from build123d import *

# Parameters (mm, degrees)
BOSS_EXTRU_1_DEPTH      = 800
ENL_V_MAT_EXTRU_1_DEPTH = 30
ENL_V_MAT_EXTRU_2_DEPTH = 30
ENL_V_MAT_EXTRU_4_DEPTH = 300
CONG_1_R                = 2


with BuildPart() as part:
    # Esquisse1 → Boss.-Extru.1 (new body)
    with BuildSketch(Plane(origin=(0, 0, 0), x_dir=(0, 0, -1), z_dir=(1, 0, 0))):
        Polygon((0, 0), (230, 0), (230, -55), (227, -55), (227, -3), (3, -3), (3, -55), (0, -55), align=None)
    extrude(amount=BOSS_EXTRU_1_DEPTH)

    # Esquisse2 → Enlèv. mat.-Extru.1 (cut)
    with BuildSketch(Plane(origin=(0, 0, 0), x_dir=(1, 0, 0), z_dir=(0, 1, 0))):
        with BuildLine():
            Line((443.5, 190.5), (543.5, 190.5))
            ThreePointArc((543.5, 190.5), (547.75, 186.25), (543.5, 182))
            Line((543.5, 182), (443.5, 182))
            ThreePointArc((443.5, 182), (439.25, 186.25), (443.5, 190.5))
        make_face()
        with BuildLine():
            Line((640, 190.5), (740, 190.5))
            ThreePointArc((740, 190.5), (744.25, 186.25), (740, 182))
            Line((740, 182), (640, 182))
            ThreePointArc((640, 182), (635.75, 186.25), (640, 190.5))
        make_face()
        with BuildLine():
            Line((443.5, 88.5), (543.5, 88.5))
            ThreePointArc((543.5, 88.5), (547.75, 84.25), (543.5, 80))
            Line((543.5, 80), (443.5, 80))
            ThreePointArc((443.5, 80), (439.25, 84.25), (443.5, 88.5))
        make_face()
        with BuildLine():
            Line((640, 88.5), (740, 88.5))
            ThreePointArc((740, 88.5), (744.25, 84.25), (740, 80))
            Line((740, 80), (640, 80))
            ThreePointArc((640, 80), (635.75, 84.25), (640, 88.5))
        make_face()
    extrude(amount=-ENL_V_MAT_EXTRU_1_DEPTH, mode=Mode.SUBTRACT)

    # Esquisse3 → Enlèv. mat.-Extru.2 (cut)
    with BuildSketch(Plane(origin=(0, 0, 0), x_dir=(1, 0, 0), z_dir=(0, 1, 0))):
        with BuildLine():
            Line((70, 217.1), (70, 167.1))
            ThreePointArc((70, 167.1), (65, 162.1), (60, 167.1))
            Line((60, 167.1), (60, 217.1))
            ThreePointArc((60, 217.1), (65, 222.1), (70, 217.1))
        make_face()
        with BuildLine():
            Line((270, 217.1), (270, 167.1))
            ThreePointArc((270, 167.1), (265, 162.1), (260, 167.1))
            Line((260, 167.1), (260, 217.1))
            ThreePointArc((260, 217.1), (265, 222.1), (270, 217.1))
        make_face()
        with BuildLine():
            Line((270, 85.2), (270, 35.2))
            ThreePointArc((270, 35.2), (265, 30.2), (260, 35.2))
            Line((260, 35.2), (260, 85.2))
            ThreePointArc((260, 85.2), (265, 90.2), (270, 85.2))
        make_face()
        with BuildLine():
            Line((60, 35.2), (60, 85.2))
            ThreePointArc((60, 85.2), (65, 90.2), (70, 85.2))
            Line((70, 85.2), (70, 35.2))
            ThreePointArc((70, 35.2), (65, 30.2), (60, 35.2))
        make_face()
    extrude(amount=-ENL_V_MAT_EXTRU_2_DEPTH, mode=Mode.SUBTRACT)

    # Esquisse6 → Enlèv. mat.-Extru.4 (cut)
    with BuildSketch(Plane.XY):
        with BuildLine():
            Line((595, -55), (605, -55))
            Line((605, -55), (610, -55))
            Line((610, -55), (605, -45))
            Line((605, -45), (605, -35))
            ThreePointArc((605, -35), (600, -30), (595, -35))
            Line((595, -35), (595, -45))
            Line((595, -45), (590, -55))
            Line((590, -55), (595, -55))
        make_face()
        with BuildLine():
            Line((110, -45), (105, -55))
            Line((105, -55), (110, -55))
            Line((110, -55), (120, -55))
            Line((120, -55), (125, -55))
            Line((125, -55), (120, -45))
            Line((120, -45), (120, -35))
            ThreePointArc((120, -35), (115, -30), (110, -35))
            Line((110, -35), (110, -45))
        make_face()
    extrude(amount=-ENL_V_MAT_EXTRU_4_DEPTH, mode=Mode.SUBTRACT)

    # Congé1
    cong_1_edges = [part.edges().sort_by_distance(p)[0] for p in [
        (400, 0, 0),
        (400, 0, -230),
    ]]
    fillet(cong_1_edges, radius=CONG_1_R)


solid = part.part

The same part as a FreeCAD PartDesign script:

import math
import FreeCAD as App
import Part
import Sketcher


def edges_at(feature, points):
    """Names of the edges that pass closest to the given points."""
    edges = feature.Shape.Edges
    near = lambda p: min(range(len(edges)), key=lambda i: edges[i].distToShape(Part.Vertex(*p))[0])
    return sorted({f"Edge{near(p) + 1}" for p in points})

doc = App.newDocument("Part")
body = doc.addObject("PartDesign::Body", "Body")

# Sketch on YZ plane
sketch1 = body.newObject("Sketcher::SketchObject", "Sketch")
sketch1.AttachmentSupport = (doc.getObject("YZ_Plane"), [""])
sketch1.MapMode = "FlatFace"
sketch1.addGeometry(Part.LineSegment(App.Vector(0, -230, 0), App.Vector(0, 0, 0)), False)
sketch1.addGeometry(Part.LineSegment(App.Vector(0, 0, 0), App.Vector(-55, 0, 0)), False)
sketch1.addGeometry(Part.LineSegment(App.Vector(-55, 0, 0), App.Vector(-55, -3, 0)), False)
sketch1.addGeometry(Part.LineSegment(App.Vector(-55, -3, 0), App.Vector(-3, -3, 0)), False)
sketch1.addGeometry(Part.LineSegment(App.Vector(-3, -3, 0), App.Vector(-3, -227, 0)), False)
sketch1.addGeometry(Part.LineSegment(App.Vector(-3, -227, 0), App.Vector(-55, -227, 0)), False)
sketch1.addGeometry(Part.LineSegment(App.Vector(-55, -227, 0), App.Vector(-55, -230, 0)), False)
sketch1.addGeometry(Part.LineSegment(App.Vector(-55, -230, 0), App.Vector(0, -230, 0)), False)
sketch1.addConstraint(Sketcher.Constraint("Coincident", 0, 2, 1, 1))
sketch1.addConstraint(Sketcher.Constraint("Coincident", 1, 2, 2, 1))
sketch1.addConstraint(Sketcher.Constraint("Coincident", 2, 2, 3, 1))
sketch1.addConstraint(Sketcher.Constraint("Coincident", 3, 2, 4, 1))
sketch1.addConstraint(Sketcher.Constraint("Coincident", 4, 2, 5, 1))
sketch1.addConstraint(Sketcher.Constraint("Coincident", 5, 2, 6, 1))
sketch1.addConstraint(Sketcher.Constraint("Coincident", 6, 2, 7, 1))
sketch1.addConstraint(Sketcher.Constraint("Coincident", 7, 2, 0, 1))
sketch1.addConstraint(Sketcher.Constraint("Vertical", 0))
sketch1.addConstraint(Sketcher.Constraint("Horizontal", 1))
sketch1.addConstraint(Sketcher.Constraint("Vertical", 2))
sketch1.addConstraint(Sketcher.Constraint("Horizontal", 3))
sketch1.addConstraint(Sketcher.Constraint("Vertical", 4))
sketch1.addConstraint(Sketcher.Constraint("Horizontal", 5))
sketch1.addConstraint(Sketcher.Constraint("Vertical", 6))
sketch1.addConstraint(Sketcher.Constraint("Horizontal", 7))
sketch1.addConstraint(Sketcher.Constraint("Coincident", 0, 2, -1, 1))
sketch1.addConstraint(Sketcher.Constraint("Vertical", 2, 2, 5, 2))
sketch1.addConstraint(Sketcher.Constraint("Equal", 2, 6))
sketch1.addConstraint(Sketcher.Constraint("DistanceX", 1, 2, 1, 1, 55.0))
sketch1.addConstraint(Sketcher.Constraint("DistanceX", 3, 1, 3, 2, 52.0))
sketch1.addConstraint(Sketcher.Constraint("DistanceY", 0, 1, 0, 2, 230.0))
sketch1.addConstraint(Sketcher.Constraint("DistanceY", 2, 2, 2, 1, 3.0))
pad1 = body.newObject("PartDesign::Pad", "Pad")
pad1.Profile = sketch1
pad1.Length = 800

# Sketch on XZ plane
sketch2 = body.newObject("Sketcher::SketchObject", "Sketch001")
sketch2.AttachmentSupport = (doc.getObject("XZ_Plane"), [""])
sketch2.MapMode = "FlatFace"
sketch2.addGeometry(Part.LineSegment(App.Vector(543.5, -190.5, 0), App.Vector(443.5, -190.5, 0)), False)
sketch2.addGeometry(Part.ArcOfCircle(Part.Circle(App.Vector(443.5, -186.25, 0), App.Vector(0, 0, 1), 4.25), math.radians(90), math.radians(270)), False)
sketch2.addGeometry(Part.LineSegment(App.Vector(443.5, -182, 0), App.Vector(543.5, -182, 0)), False)
sketch2.addGeometry(Part.ArcOfCircle(Part.Circle(App.Vector(543.5, -186.25, 0), App.Vector(0, 0, 1), 4.25), math.radians(-90), math.radians(90)), False)
sketch2.addGeometry(Part.LineSegment(App.Vector(740, -190.5, 0), App.Vector(640, -190.5, 0)), False)
sketch2.addGeometry(Part.ArcOfCircle(Part.Circle(App.Vector(640, -186.25, 0), App.Vector(0, 0, 1), 4.25), math.radians(90), math.radians(270)), False)
sketch2.addGeometry(Part.LineSegment(App.Vector(640, -182, 0), App.Vector(740, -182, 0)), False)
sketch2.addGeometry(Part.ArcOfCircle(Part.Circle(App.Vector(740, -186.25, 0), App.Vector(0, 0, 1), 4.25), math.radians(-90), math.radians(90)), False)
sketch2.addGeometry(Part.LineSegment(App.Vector(543.5, -88.5, 0), App.Vector(443.5, -88.5, 0)), False)
sketch2.addGeometry(Part.ArcOfCircle(Part.Circle(App.Vector(443.5, -84.25, 0), App.Vector(0, 0, 1), 4.25), math.radians(90), math.radians(270)), False)
sketch2.addGeometry(Part.LineSegment(App.Vector(443.5, -80, 0), App.Vector(543.5, -80, 0)), False)
sketch2.addGeometry(Part.ArcOfCircle(Part.Circle(App.Vector(543.5, -84.25, 0), App.Vector(0, 0, 1), 4.25), math.radians(-90), math.radians(90)), False)
sketch2.addGeometry(Part.LineSegment(App.Vector(740, -88.5, 0), App.Vector(640, -88.5, 0)), False)
sketch2.addGeometry(Part.ArcOfCircle(Part.Circle(App.Vector(640, -84.25, 0), App.Vector(0, 0, 1), 4.25), math.radians(90), math.radians(270)), False)
sketch2.addGeometry(Part.LineSegment(App.Vector(640, -80, 0), App.Vector(740, -80, 0)), False)
sketch2.addGeometry(Part.ArcOfCircle(Part.Circle(App.Vector(740, -84.25, 0), App.Vector(0, 0, 1), 4.25), math.radians(-90), math.radians(90)), False)
sketch2.addConstraint(Sketcher.Constraint("Tangent", 0, 2, 1, 2))
sketch2.addConstraint(Sketcher.Constraint("Tangent", 1, 1, 2, 1))
sketch2.addConstraint(Sketcher.Constraint("Tangent", 2, 2, 3, 2))
sketch2.addConstraint(Sketcher.Constraint("Tangent", 3, 1, 0, 1))
sketch2.addConstraint(Sketcher.Constraint("Tangent", 4, 2, 5, 2))
sketch2.addConstraint(Sketcher.Constraint("Tangent", 5, 1, 6, 1))
sketch2.addConstraint(Sketcher.Constraint("Tangent", 6, 2, 7, 2))
sketch2.addConstraint(Sketcher.Constraint("Tangent", 7, 1, 4, 1))
sketch2.addConstraint(Sketcher.Constraint("Tangent", 8, 2, 9, 2))
sketch2.addConstraint(Sketcher.Constraint("Tangent", 9, 1, 10, 1))
sketch2.addConstraint(Sketcher.Constraint("Tangent", 10, 2, 11, 2))
sketch2.addConstraint(Sketcher.Constraint("Tangent", 11, 1, 8, 1))
sketch2.addConstraint(Sketcher.Constraint("Tangent", 12, 2, 13, 2))
sketch2.addConstraint(Sketcher.Constraint("Tangent", 13, 1, 14, 1))
sketch2.addConstraint(Sketcher.Constraint("Tangent", 14, 2, 15, 2))
sketch2.addConstraint(Sketcher.Constraint("Tangent", 15, 1, 12, 1))
sketch2.addConstraint(Sketcher.Constraint("Horizontal", 0))
sketch2.addConstraint(Sketcher.Constraint("Horizontal", 2))
sketch2.addConstraint(Sketcher.Constraint("Horizontal", 4))
sketch2.addConstraint(Sketcher.Constraint("Horizontal", 6))
sketch2.addConstraint(Sketcher.Constraint("Horizontal", 8))
sketch2.addConstraint(Sketcher.Constraint("Horizontal", 10))
sketch2.addConstraint(Sketcher.Constraint("Horizontal", 12))
sketch2.addConstraint(Sketcher.Constraint("Horizontal", 14))
sketch2.addConstraint(Sketcher.Constraint("Equal", 3, 5))
sketch2.addConstraint(Sketcher.Constraint("Equal", 7, 9))
sketch2.addConstraint(Sketcher.Constraint("Equal", 11, 13))
sketch2.addConstraint(Sketcher.Constraint("Horizontal", 3, 3, 5, 3))
sketch2.addConstraint(Sketcher.Constraint("Horizontal", 11, 3, 13, 3))
sketch2.addConstraint(Sketcher.Constraint("Vertical", 1, 3, 9, 3))
sketch2.addConstraint(Sketcher.Constraint("Vertical", 3, 3, 11, 3))
sketch2.addConstraint(Sketcher.Constraint("Vertical", 5, 3, 13, 3))
sketch2.addConstraint(Sketcher.Constraint("Vertical", 7, 3, 15, 3))
sketch2.addConstraint(Sketcher.Constraint("Equal", 2, 4))
sketch2.addConstraint(Sketcher.Constraint("DistanceX", 0, 2, 0, 1, 100.0))
sketch2.addConstraint(Sketcher.Constraint("Radius", 1, 4.25))
sketch2.addConstraint(Sketcher.Constraint("DistanceX", -1, 1, 5, 3, 640.0))
sketch2.addConstraint(Sketcher.Constraint("DistanceY", 1, 1, -1, 1, 182.0))
sketch2.addConstraint(Sketcher.Constraint("DistanceY", 9, 1, -1, 1, 80.0))
sketch2.addConstraint(Sketcher.Constraint("DistanceX", -1, 1, 1, 3, 443.5))
pocket1 = body.newObject("PartDesign::Pocket", "Pocket")
pocket1.Profile = sketch2
pocket1.Length = 30
pocket1.Reversed = True

# Sketch on XZ plane
sketch3 = body.newObject("Sketcher::SketchObject", "Sketch002")
sketch3.AttachmentSupport = (doc.getObject("XZ_Plane"), [""])
sketch3.MapMode = "FlatFace"
sketch3.addGeometry(Part.LineSegment(App.Vector(70, -167.1, 0), App.Vector(70, -217.1, 0)), False)
sketch3.addGeometry(Part.ArcOfCircle(Part.Circle(App.Vector(65, -217.1, 0), App.Vector(0, 0, 1), 5), math.radians(180), math.radians(360)), False)
sketch3.addGeometry(Part.LineSegment(App.Vector(60, -217.1, 0), App.Vector(60, -167.1, 0)), False)
sketch3.addGeometry(Part.ArcOfCircle(Part.Circle(App.Vector(65, -167.1, 0), App.Vector(0, 0, 1), 5), math.radians(0), math.radians(180)), False)
sketch3.addGeometry(Part.LineSegment(App.Vector(270, -167.1, 0), App.Vector(270, -217.1, 0)), False)
sketch3.addGeometry(Part.ArcOfCircle(Part.Circle(App.Vector(265, -217.1, 0), App.Vector(0, 0, 1), 5), math.radians(180), math.radians(360)), False)
sketch3.addGeometry(Part.LineSegment(App.Vector(260, -217.1, 0), App.Vector(260, -167.1, 0)), False)
sketch3.addGeometry(Part.ArcOfCircle(Part.Circle(App.Vector(265, -167.1, 0), App.Vector(0, 0, 1), 5), math.radians(0), math.radians(180)), False)
sketch3.addGeometry(Part.LineSegment(App.Vector(270, -35.2, 0), App.Vector(270, -85.2, 0)), False)
sketch3.addGeometry(Part.ArcOfCircle(Part.Circle(App.Vector(265, -85.2, 0), App.Vector(0, 0, 1), 5), math.radians(180), math.radians(360)), False)
sketch3.addGeometry(Part.LineSegment(App.Vector(260, -85.2, 0), App.Vector(260, -35.2, 0)), False)
sketch3.addGeometry(Part.ArcOfCircle(Part.Circle(App.Vector(265, -35.2, 0), App.Vector(0, 0, 1), 5), math.radians(0), math.radians(180)), False)
sketch3.addGeometry(Part.LineSegment(App.Vector(60, -85.2, 0), App.Vector(60, -35.2, 0)), False)
sketch3.addGeometry(Part.ArcOfCircle(Part.Circle(App.Vector(65, -35.2, 0), App.Vector(0, 0, 1), 5), math.radians(0), math.radians(180)), False)
sketch3.addGeometry(Part.LineSegment(App.Vector(70, -35.2, 0), App.Vector(70, -85.2, 0)), False)
sketch3.addGeometry(Part.ArcOfCircle(Part.Circle(App.Vector(65, -85.2, 0), App.Vector(0, 0, 1), 5), math.radians(180), math.radians(360)), False)
sketch3.addConstraint(Sketcher.Constraint("Tangent", 0, 2, 1, 2))
sketch3.addConstraint(Sketcher.Constraint("Tangent", 1, 1, 2, 1))
sketch3.addConstraint(Sketcher.Constraint("Tangent", 2, 2, 3, 2))
sketch3.addConstraint(Sketcher.Constraint("Tangent", 3, 1, 0, 1))
sketch3.addConstraint(Sketcher.Constraint("Tangent", 4, 2, 5, 2))
sketch3.addConstraint(Sketcher.Constraint("Tangent", 5, 1, 6, 1))
sketch3.addConstraint(Sketcher.Constraint("Tangent", 6, 2, 7, 2))
sketch3.addConstraint(Sketcher.Constraint("Tangent", 7, 1, 4, 1))
sketch3.addConstraint(Sketcher.Constraint("Tangent", 8, 2, 9, 2))
sketch3.addConstraint(Sketcher.Constraint("Tangent", 9, 1, 10, 1))
sketch3.addConstraint(Sketcher.Constraint("Tangent", 10, 2, 11, 2))
sketch3.addConstraint(Sketcher.Constraint("Tangent", 11, 1, 8, 1))
sketch3.addConstraint(Sketcher.Constraint("Tangent", 12, 2, 13, 2))
sketch3.addConstraint(Sketcher.Constraint("Tangent", 13, 1, 14, 1))
sketch3.addConstraint(Sketcher.Constraint("Tangent", 14, 2, 15, 2))
sketch3.addConstraint(Sketcher.Constraint("Tangent", 15, 1, 12, 1))
sketch3.addConstraint(Sketcher.Constraint("Vertical", 0))
sketch3.addConstraint(Sketcher.Constraint("Vertical", 2))
sketch3.addConstraint(Sketcher.Constraint("Vertical", 4))
sketch3.addConstraint(Sketcher.Constraint("Vertical", 6))
sketch3.addConstraint(Sketcher.Constraint("Vertical", 8))
sketch3.addConstraint(Sketcher.Constraint("Vertical", 10))
sketch3.addConstraint(Sketcher.Constraint("Vertical", 12))
sketch3.addConstraint(Sketcher.Constraint("Vertical", 14))
sketch3.addConstraint(Sketcher.Constraint("Equal", 3, 5))
sketch3.addConstraint(Sketcher.Constraint("Equal", 7, 9))
sketch3.addConstraint(Sketcher.Constraint("Equal", 11, 13))
sketch3.addConstraint(Sketcher.Constraint("Horizontal", 1, 3, 5, 3))
sketch3.addConstraint(Sketcher.Constraint("Horizontal", 3, 3, 7, 3))
sketch3.addConstraint(Sketcher.Constraint("Horizontal", 11, 3, 13, 3))
sketch3.addConstraint(Sketcher.Constraint("Horizontal", 9, 3, 15, 3))
sketch3.addConstraint(Sketcher.Constraint("Vertical", 7, 3, 9, 3))
sketch3.addConstraint(Sketcher.Constraint("Vertical", 3, 3, 13, 3))
sketch3.addConstraint(Sketcher.Constraint("Equal", 6, 8))
sketch3.addConstraint(Sketcher.Constraint("Radius", 1, 5.0))
sketch3.addConstraint(Sketcher.Constraint("DistanceY", 0, 2, 0, 1, 50.0))
sketch3.addConstraint(Sketcher.Constraint("DistanceX", -1, 1, 1, 3, 65.0))
sketch3.addConstraint(Sketcher.Constraint("DistanceX", -1, 1, 5, 3, 265.0))
sketch3.addConstraint(Sketcher.Constraint("DistanceY", 1, 3, -1, 1, 217.1))
sketch3.addConstraint(Sketcher.Constraint("DistanceY", 9, 3, -1, 1, 85.2))
pocket2 = body.newObject("PartDesign::Pocket", "Pocket001")
pocket2.Profile = sketch3
pocket2.Length = 30
pocket2.Reversed = True

# Sketch on XY plane
sketch4 = body.newObject("Sketcher::SketchObject", "Sketch003")
sketch4.AttachmentSupport = (doc.getObject("XY_Plane"), [""])
sketch4.MapMode = "FlatFace"
sketch4.addGeometry(Part.LineSegment(App.Vector(610, -55, 0), App.Vector(605, -45, 0)), False)
sketch4.addGeometry(Part.LineSegment(App.Vector(605, -45, 0), App.Vector(605, -35, 0)), False)
sketch4.addGeometry(Part.ArcOfCircle(Part.Circle(App.Vector(600, -35, 0), App.Vector(0, 0, 1), 5), math.radians(0), math.radians(180)), False)
sketch4.addGeometry(Part.LineSegment(App.Vector(595, -35, 0), App.Vector(595, -45, 0)), False)
sketch4.addGeometry(Part.LineSegment(App.Vector(595, -45, 0), App.Vector(590, -55, 0)), False)
sketch4.addGeometry(Part.LineSegment(App.Vector(590, -55, 0), App.Vector(610, -55, 0)), False)
sketch4.addGeometry(Part.LineSegment(App.Vector(110, -45, 0), App.Vector(105, -55, 0)), False)
sketch4.addGeometry(Part.LineSegment(App.Vector(105, -55, 0), App.Vector(125, -55, 0)), False)
sketch4.addGeometry(Part.LineSegment(App.Vector(125, -55, 0), App.Vector(120, -45, 0)), False)
sketch4.addGeometry(Part.LineSegment(App.Vector(120, -45, 0), App.Vector(120, -35, 0)), False)
sketch4.addGeometry(Part.ArcOfCircle(Part.Circle(App.Vector(115, -35, 0), App.Vector(0, 0, 1), 5), math.radians(0), math.radians(180)), False)
sketch4.addGeometry(Part.LineSegment(App.Vector(110, -35, 0), App.Vector(110, -45, 0)), False)
sketch4.addConstraint(Sketcher.Constraint("Coincident", 0, 2, 1, 1))
sketch4.addConstraint(Sketcher.Constraint("Tangent", 1, 2, 2, 1))
sketch4.addConstraint(Sketcher.Constraint("Tangent", 2, 2, 3, 1))
sketch4.addConstraint(Sketcher.Constraint("Coincident", 3, 2, 4, 1))
sketch4.addConstraint(Sketcher.Constraint("Coincident", 4, 2, 5, 1))
sketch4.addConstraint(Sketcher.Constraint("Coincident", 5, 2, 0, 1))
sketch4.addConstraint(Sketcher.Constraint("Coincident", 6, 2, 7, 1))
sketch4.addConstraint(Sketcher.Constraint("Coincident", 7, 2, 8, 1))
sketch4.addConstraint(Sketcher.Constraint("Coincident", 8, 2, 9, 1))
sketch4.addConstraint(Sketcher.Constraint("Tangent", 9, 2, 10, 1))
sketch4.addConstraint(Sketcher.Constraint("Tangent", 10, 2, 11, 1))
sketch4.addConstraint(Sketcher.Constraint("Coincident", 11, 2, 6, 1))
sketch4.addConstraint(Sketcher.Constraint("Vertical", 1))
sketch4.addConstraint(Sketcher.Constraint("Vertical", 3))
sketch4.addConstraint(Sketcher.Constraint("Horizontal", 5))
sketch4.addConstraint(Sketcher.Constraint("Horizontal", 7))
sketch4.addConstraint(Sketcher.Constraint("Vertical", 9))
sketch4.addConstraint(Sketcher.Constraint("Vertical", 11))
sketch4.addConstraint(Sketcher.Constraint("Equal", 2, 10))
sketch4.addConstraint(Sketcher.Constraint("Parallel", 4, 6))
sketch4.addConstraint(Sketcher.Constraint("Parallel", 0, 8))
sketch4.addConstraint(Sketcher.Constraint("Horizontal", 2, 3, 10, 3))
sketch4.addConstraint(Sketcher.Constraint("Horizontal", 0, 2, 3, 2))
sketch4.addConstraint(Sketcher.Constraint("Horizontal", 5, 2, 6, 2))
sketch4.addConstraint(Sketcher.Constraint("Horizontal", 3, 2, 8, 2))
sketch4.addConstraint(Sketcher.Constraint("Horizontal", 8, 2, 11, 2))
sketch4.addConstraint(Sketcher.Constraint("Equal", 0, 4))
sketch4.addConstraint(Sketcher.Constraint("Radius", 2, 5.0))
sketch4.addConstraint(Sketcher.Constraint("DistanceX", 5, 1, 5, 2, 20.0))
sketch4.addConstraint(Sketcher.Constraint("DistanceY", 1, 1, 1, 2, 10.0))
sketch4.addConstraint(Sketcher.Constraint("DistanceX", -1, 1, 2, 3, 600.0))
sketch4.addConstraint(Sketcher.Constraint("DistanceY", 2, 3, -1, 1, 35.0))
sketch4.addConstraint(Sketcher.Constraint("DistanceX", -1, 1, 10, 3, 115.0))
sketch4.addConstraint(Sketcher.Constraint("DistanceY", 4, 2, -1, 1, 55.0))
pocket3 = body.newObject("PartDesign::Pocket", "Pocket002")
pocket3.Profile = sketch4
pocket3.Length = 300
doc.recompute()

fillet = body.newObject("PartDesign::Fillet", "Fillet")
fillet.Base = (pocket3, edges_at(pocket3, [(400, 0, 0), (400, 0, -230)]))
fillet.Radius = 2

doc.recompute()
